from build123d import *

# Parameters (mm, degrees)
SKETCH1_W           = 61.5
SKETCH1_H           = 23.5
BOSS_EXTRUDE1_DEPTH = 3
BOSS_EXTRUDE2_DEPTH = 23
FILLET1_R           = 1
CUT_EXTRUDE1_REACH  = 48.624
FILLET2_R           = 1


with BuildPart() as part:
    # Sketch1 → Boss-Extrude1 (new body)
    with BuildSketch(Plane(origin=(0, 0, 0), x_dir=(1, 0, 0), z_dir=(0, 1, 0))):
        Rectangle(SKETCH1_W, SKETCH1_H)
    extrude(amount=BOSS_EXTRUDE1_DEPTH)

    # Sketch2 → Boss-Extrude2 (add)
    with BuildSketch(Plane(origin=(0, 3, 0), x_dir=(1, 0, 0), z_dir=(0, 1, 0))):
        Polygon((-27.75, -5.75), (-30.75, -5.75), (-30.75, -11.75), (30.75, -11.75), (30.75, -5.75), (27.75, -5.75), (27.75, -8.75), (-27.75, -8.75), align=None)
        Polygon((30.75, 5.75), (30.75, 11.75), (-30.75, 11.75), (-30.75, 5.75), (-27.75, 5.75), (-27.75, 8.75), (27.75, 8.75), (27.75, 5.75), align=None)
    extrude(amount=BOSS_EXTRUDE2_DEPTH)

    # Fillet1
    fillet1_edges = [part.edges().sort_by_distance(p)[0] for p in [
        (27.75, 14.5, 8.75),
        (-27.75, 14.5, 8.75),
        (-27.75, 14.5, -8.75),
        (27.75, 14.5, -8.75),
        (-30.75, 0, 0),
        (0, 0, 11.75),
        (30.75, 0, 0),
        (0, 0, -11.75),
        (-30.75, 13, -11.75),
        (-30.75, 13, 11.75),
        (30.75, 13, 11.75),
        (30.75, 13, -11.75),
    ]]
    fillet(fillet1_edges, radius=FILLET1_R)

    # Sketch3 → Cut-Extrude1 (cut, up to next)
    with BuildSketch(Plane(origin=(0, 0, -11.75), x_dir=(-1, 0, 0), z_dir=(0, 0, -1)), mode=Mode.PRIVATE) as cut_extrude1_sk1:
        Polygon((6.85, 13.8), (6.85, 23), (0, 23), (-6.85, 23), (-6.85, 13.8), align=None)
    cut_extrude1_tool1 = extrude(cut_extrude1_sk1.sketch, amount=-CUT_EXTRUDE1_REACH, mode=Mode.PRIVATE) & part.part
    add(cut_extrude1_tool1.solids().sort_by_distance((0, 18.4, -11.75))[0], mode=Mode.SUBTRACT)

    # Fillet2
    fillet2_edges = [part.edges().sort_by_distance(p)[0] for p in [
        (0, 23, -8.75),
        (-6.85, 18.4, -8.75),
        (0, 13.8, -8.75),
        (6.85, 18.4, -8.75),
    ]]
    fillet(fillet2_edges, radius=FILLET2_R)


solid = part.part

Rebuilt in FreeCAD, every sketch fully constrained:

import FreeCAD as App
import Part
import Sketcher
from FreeCAD import Vector


def edges_at(feature, points):
    """Names of the edges that pass closest to the given points."""
    edges = feature.Shape.Edges
    near = lambda p: min(range(len(edges)), key=lambda i: edges[i].distToShape(Part.Vertex(*p))[0])
    return sorted({f"Edge{near(p) + 1}" for p in points})


def add_polygon(sketch, points):
    """Adds a closed chain of lines whose ends are joined by coincident constraints."""
    first, n = sketch.GeometryCount, len(points)
    for a, b in zip(points, points[1:] + points[:1]):
        sketch.addGeometry(Part.LineSegment(App.Vector(*a, 0), App.Vector(*b, 0)), False)
    for i in range(n):
        sketch.addConstraint(Sketcher.Constraint("Coincident", first + i, 2, first + (i + 1) % n, 1))

doc = App.newDocument("Part")
body = doc.addObject("PartDesign::Body", "Body")

# Sketch on XZ plane
sketch1 = body.newObject("Sketcher::SketchObject", "Sketch")
sketch1.AttachmentSupport = (doc.getObject("XZ_Plane"), [""])
sketch1.MapMode = "FlatFace"
add_polygon(sketch1, [(-31, -12), (-31, 12), (31, 12), (31, -12)])  # lines 0-3
sketch1.addConstraint([
    Sketcher.Constraint("Vertical", 0),
    Sketcher.Constraint("Horizontal", 1),
    Sketcher.Constraint("Vertical", 2),
    Sketcher.Constraint("Horizontal", 3),
    Sketcher.Constraint("Symmetric", 0, 2, 2, 2, -1, 1),
    Sketcher.Constraint("DistanceX", 1, 1, 1, 2, 61.5),
    Sketcher.Constraint("DistanceY", 0, 1, 0, 2, 23.5),
])
pad1 = body.newObject("PartDesign::Pad", "Pad")
pad1.Profile = sketch1
pad1.Length = 3
pad1.Reversed = True

# Sketch on XZ plane
sketch2 = body.newObject("Sketcher::SketchObject", "Sketch001")
sketch2.AttachmentSupport = (doc.getObject("XZ_Plane"), [""])
sketch2.MapMode = "FlatFace"
sketch2.AttachmentOffset = App.Placement(Vector(0, 0, -3), App.Rotation())
add_polygon(sketch2, [(-27.8, 5.8), (-30.8, 5.8), (-30.8, 11.8), (30.8, 11.8), (30.8, 5.8), (27.8, 5.8), (27.8, 8.8), (-27.8, 8.8)])  # lines 0-7
add_polygon(sketch2, [(30.8, -5.8), (30.8, -11.8), (-30.8, -11.8), (-30.8, -5.8), (-27.8, -5.8), (-27.8, -8.8), (27.8, -8.8), (27.8, -5.8)])  # lines 8-15
sketch2.addConstraint([
    Sketcher.Constraint("Horizontal", 0),
    Sketcher.Constraint("Vertical", 1),
    Sketcher.Constraint("Horizontal", 2),
    Sketcher.Constraint("Vertical", 3),
    Sketcher.Constraint("Horizontal", 4),
    Sketcher.Constraint("Vertical", 5),
    Sketcher.Constraint("Horizontal", 6),
    Sketcher.Constraint("Vertical", 7),
    Sketcher.Constraint("Vertical", 8),
    Sketcher.Constraint("Horizontal", 9),
    Sketcher.Constraint("Vertical", 10),
    Sketcher.Constraint("Horizontal", 11),
    Sketcher.Constraint("Vertical", 12),
    Sketcher.Constraint("Horizontal", 13),
    Sketcher.Constraint("Vertical", 14),
    Sketcher.Constraint("Horizontal", 15),
    Sketcher.Constraint("Symmetric", 1, 2, 8, 2, -1, 1),
    Sketcher.Constraint("Symmetric", 3, 2, 10, 2, -1, 1),
    Sketcher.Constraint("Symmetric", 5, 2, 12, 2, -1, 1),
    Sketcher.Constraint("Symmetric", 7, 2, 14, 2, -1, 1),
    Sketcher.Constraint("Symmetric", 0, 2, 3, 2, -2),
    Sketcher.Constraint("Vertical", 7, 2, 11, 2),
    Sketcher.Constraint("Equal", 15, 5),
    Sketcher.Constraint("DistanceX", 0, 2, 0, 1, 3.0),
    Sketcher.Constraint("DistanceY", 1, 1, 1, 2, 6.0),
    Sketcher.Constraint("DistanceX", 2, 1, 2, 2, 61.5),
    Sketcher.Constraint("DistanceY", 8, 2, 3, 2, 17.5),
])
pad2 = body.newObject("PartDesign::Pad", "Pad001")
pad2.Profile = sketch2
pad2.Length = 23
pad2.Reversed = True
doc.recompute()

fillet = body.newObject("PartDesign::Fillet", "Fillet")
fillet.Base = (pad2, edges_at(pad2, [
    (27.75, 14.5, 8.75),
    (-27.75, 14.5, 8.75),
    (-27.75, 14.5, -8.75),
    (27.75, 14.5, -8.75),
    (-30.75, 0, 0),
    (0, 0, 11.75),
    (30.75, 0, 0),
    (0, 0, -11.75),
    (-30.75, 13, -11.75),
    (-30.75, 13, 11.75),
    (30.75, 13, 11.75),
    (30.75, 13, -11.75),
]))
fillet.Radius = 1

# Sketch on XY plane
sketch3 = body.newObject("Sketcher::SketchObject", "Sketch002")
sketch3.AttachmentSupport = (doc.getObject("XY_Plane"), [""])
sketch3.MapMode = "FlatFace"
sketch3.AttachmentOffset = App.Placement(Vector(0, 0, -11.75), App.Rotation())
add_polygon(sketch3, [(-7, 14), (-7, 23), (7, 23), (7, 14)])  # lines 0-3
sketch3.addConstraint([
    Sketcher.Constraint("Vertical", 0),
    Sketcher.Constraint("Horizontal", 1),
    Sketcher.Constraint("Vertical", 2),
    Sketcher.Constraint("Horizontal", 3),
    Sketcher.Constraint("DistanceX", 1, 1, 1, 2, 13.7),
    Sketcher.Constraint("DistanceY", 0, 1, 0, 2, 9.2),
    Sketcher.Constraint("DistanceY", -1, 1, 0, 2, 23.0),
    Sketcher.Constraint("DistanceX", 0, 2, -1, 1, 6.85),
])
pocket1 = body.newObject("PartDesign::Pocket", "Pocket")
pocket1.Profile = sketch3
pocket1.Type = "UpToFirst"
pocket1.Reversed = True
doc.recompute()

fillet2 = body.newObject("PartDesign::Fillet", "Fillet001")
fillet2.Base = (pocket1, edges_at(pocket1, [
    (0, 23, -8.75),
    (-6.85, 18.4, -8.75),
    (0, 13.8, -8.75),
    (6.85, 18.4, -8.75),
]))
fillet2.Radius = 1

doc.recompute()
